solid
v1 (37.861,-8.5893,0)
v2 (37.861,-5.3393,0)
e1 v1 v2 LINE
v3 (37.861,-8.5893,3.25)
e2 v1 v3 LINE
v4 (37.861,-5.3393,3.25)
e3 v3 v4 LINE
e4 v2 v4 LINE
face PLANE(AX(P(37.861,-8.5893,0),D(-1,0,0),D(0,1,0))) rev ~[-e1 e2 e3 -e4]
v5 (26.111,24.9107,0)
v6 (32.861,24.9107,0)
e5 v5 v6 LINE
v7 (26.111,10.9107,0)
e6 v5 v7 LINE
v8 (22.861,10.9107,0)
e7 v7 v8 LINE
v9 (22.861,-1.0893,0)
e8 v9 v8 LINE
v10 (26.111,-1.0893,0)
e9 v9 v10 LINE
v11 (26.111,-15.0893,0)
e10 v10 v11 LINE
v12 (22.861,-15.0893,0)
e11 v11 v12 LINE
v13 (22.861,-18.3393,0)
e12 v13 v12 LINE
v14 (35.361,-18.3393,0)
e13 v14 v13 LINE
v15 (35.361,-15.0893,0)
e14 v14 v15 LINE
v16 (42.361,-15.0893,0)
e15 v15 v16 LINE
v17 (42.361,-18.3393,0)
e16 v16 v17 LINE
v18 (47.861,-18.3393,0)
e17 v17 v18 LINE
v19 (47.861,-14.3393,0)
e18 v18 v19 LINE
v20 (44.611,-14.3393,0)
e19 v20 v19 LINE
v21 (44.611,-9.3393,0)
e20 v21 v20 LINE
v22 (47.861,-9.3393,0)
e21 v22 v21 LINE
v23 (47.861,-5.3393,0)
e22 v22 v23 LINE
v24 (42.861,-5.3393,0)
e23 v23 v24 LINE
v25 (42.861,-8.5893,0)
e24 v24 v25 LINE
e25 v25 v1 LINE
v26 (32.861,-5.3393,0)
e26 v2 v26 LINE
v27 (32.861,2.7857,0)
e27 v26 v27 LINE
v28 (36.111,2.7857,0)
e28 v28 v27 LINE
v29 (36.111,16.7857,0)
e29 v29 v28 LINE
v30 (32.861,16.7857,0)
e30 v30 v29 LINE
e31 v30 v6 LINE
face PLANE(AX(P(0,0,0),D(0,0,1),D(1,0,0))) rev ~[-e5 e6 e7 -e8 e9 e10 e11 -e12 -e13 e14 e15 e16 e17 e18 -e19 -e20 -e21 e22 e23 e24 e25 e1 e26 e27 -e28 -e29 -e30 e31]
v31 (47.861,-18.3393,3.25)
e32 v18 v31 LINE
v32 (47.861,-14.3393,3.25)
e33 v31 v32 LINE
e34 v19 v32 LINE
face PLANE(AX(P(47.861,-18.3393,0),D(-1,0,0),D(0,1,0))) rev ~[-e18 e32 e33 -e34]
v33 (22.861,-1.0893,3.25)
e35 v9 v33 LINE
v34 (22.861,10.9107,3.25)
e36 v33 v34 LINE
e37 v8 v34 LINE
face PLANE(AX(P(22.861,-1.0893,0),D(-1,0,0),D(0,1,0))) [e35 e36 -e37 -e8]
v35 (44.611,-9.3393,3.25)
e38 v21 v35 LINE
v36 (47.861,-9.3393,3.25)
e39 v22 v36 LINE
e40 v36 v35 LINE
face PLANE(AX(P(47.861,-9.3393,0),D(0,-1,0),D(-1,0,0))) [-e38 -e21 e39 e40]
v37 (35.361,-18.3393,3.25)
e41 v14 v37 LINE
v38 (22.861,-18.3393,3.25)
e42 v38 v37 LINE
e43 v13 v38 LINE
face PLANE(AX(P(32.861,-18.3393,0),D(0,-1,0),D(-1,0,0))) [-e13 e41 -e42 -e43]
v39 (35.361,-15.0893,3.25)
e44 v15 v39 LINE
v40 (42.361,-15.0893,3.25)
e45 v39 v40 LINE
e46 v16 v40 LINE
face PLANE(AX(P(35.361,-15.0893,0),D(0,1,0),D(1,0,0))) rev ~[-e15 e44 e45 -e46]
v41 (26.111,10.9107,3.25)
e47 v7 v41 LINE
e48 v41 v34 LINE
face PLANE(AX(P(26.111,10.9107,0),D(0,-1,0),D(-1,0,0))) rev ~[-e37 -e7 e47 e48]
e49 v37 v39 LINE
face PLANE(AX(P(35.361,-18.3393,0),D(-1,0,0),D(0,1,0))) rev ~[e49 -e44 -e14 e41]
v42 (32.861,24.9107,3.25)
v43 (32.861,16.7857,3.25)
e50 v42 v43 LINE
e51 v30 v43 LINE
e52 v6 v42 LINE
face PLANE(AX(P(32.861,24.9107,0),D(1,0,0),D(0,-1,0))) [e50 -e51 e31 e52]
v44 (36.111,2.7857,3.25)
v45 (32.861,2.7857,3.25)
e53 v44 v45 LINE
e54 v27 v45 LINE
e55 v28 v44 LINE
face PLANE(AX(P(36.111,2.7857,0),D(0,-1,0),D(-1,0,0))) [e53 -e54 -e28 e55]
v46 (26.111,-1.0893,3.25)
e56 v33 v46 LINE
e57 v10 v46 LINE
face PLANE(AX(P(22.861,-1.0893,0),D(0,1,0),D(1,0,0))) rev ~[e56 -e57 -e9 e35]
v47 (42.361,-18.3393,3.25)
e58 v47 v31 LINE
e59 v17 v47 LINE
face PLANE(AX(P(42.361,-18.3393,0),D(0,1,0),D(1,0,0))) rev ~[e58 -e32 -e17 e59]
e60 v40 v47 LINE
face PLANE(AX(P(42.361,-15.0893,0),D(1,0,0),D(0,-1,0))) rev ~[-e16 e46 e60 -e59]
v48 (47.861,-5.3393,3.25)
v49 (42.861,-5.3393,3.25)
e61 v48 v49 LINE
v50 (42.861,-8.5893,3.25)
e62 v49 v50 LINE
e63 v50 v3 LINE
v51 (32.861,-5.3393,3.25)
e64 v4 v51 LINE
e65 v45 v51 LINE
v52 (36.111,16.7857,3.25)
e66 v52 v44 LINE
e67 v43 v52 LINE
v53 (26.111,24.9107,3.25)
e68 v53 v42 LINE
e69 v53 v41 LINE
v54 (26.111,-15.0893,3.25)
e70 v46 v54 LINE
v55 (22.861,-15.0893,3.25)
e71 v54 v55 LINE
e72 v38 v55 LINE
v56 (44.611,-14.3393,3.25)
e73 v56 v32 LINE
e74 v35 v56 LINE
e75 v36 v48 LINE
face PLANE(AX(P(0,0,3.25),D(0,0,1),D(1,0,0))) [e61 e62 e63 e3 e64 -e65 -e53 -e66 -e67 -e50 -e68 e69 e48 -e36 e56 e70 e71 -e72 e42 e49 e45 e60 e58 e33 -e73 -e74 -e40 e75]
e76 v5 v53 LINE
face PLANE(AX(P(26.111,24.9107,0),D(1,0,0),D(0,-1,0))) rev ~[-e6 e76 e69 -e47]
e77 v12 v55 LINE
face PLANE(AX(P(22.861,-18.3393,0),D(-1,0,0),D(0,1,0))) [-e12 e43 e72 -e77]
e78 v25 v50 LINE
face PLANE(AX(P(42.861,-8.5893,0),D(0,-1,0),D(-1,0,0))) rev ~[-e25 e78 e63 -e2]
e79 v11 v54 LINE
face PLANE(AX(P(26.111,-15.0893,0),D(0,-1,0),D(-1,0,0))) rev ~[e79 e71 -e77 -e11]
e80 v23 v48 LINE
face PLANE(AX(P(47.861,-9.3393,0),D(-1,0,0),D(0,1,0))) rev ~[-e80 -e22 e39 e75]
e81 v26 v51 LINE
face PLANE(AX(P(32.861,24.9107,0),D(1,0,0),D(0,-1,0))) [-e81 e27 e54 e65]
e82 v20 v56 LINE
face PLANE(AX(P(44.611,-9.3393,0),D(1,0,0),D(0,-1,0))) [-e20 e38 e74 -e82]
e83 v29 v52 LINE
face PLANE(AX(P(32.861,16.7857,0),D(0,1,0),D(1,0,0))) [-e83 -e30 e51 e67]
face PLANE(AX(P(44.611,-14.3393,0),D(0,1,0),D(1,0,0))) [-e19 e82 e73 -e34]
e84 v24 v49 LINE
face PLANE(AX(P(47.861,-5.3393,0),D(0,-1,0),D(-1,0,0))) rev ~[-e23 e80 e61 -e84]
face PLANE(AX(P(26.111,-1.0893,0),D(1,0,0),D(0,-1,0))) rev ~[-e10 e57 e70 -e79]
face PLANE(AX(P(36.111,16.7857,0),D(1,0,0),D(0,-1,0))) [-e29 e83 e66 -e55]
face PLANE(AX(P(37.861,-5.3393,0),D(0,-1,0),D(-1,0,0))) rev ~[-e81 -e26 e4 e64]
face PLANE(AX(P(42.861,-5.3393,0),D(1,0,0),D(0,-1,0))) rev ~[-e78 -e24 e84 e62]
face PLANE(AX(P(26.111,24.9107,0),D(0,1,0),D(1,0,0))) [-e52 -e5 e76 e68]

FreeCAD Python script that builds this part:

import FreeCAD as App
import Part
import Sketcher

V = App.Vector


def add_polygon(sketch, points):
    """Adds a closed chain of lines whose ends are joined by coincident constraints."""
    first, n = sketch.GeometryCount, len(points)
    for a, b in zip(points, points[1:] + points[:1]):
        sketch.addGeometry(Part.LineSegment(App.Vector(*a, 0), App.Vector(*b, 0)), False)
    for i in range(n):
        sketch.addConstraint(Sketcher.Constraint("Coincident", first + i, 2, first + (i + 1) % n, 1))

doc = App.newDocument("Part")
params = doc.addObject("Spreadsheet::Sheet", "Params")
for row, (alias, value) in enumerate([
    ("sketch1_width", "7 mm"),
    ("sketch1_width2", "5 mm"),
    ("sketch1_height", "14 mm"),
    ("sketch1_width3", "12.5 mm"),
    ("sketch1_width4", "5.5 mm"),
    ("pad1_length", "3.25 mm"),
    ("sketch2_height", "14 mm"),
    ("sketch2_width", "3.25 mm"),
    ("pad2_length", "3.25 mm"),
], start=1):
    params.set(f"A{row}", alias)
    params.set(f"B{row}", "=" + value)
    params.setAlias(f"B{row}", alias)

body = doc.addObject("PartDesign::Body", "Body")

sketch1 = body.newObject("Sketcher::SketchObject", "Sketch")
sketch1.AttachmentSupport = (doc.getObject("XY_Plane"), [""])
sketch1.MapMode = "FlatFace"
add_polygon(sketch1, [(32.861, 24.9107), (26.111, 24.9107), (26.111, 10.9107), (22.861, 10.9107), (22.861, -1.0893), (26.111, -1.0893), (26.111, -15.0893), (22.861, -15.0893), (22.861, -18.3393), (35.361, -18.3393), (35.361, -15.0893), (42.361, -15.0893), (42.361, -18.3393), (47.861, -18.3393), (47.861, -14.3393), (44.611, -14.3393), (44.611, -9.3393), (47.861, -9.3393), (47.861, -5.3393), (42.861, -5.3393), (42.861, -8.5893), (37.861, -8.5893), (37.861, -5.3393), (32.861, -5.3393)])
sketch1.addConstraint([
    Sketcher.Constraint("Horizontal", 0),
    Sketcher.Constraint("Vertical", 1),
    Sketcher.Constraint("Horizontal", 2),
    Sketcher.Constraint("Vertical", 3),
    Sketcher.Constraint("Horizontal", 4),
    Sketcher.Constraint("Vertical", 5),
    Sketcher.Constraint("Horizontal", 6),
    Sketcher.Constraint("Vertical", 7),
    Sketcher.Constraint("Horizontal", 8),
    Sketcher.Constraint("Vertical", 9),
    Sketcher.Constraint("Horizontal", 10),
    Sketcher.Constraint("Vertical", 11),
    Sketcher.Constraint("Horizontal", 12),
    Sketcher.Constraint("Vertical", 13),
    Sketcher.Constraint("Horizontal", 14),
    Sketcher.Constraint("Vertical", 15),
    Sketcher.Constraint("Horizontal", 16),
    Sketcher.Constraint("Vertical", 17),
    Sketcher.Constraint("Horizontal", 18),
    Sketcher.Constraint("Vertical", 19),
    Sketcher.Constraint("Horizontal", 20),
    Sketcher.Constraint("Vertical", 21),
    Sketcher.Constraint("Horizontal", 22),
    Sketcher.Constraint("Vertical", 23),
    Sketcher.Constraint("Horizontal", 6, 2, 9, 2),
    Sketcher.Constraint("Horizontal", 8, 2, 11, 2),
    Sketcher.Constraint("Horizontal", 18, 2, 21, 2),
    Sketcher.Constraint("Vertical", 1, 2, 4, 2),
    Sketcher.Constraint("Vertical", 3, 2, 6, 2),
    Sketcher.Constraint("Vertical", 13, 2, 16, 2),
    Sketcher.Constraint("Equal", 6, 14),
    Sketcher.Constraint("Equal", 18, 20),
    Sketcher.Constraint("Equal", 20, 22),
    Sketcher.Constraint("Equal", 1, 5),
    Sketcher.Constraint("Equal", 16, 7),
    Sketcher.Constraint("Equal", 22, 15),
    Sketcher.Constraint("Equal", 13, 17),
    Sketcher.Constraint("Equal", 11, 19),
    Sketcher.Constraint("DistanceX", 10, 1, 10, 2, 7.0),
    Sketcher.Constraint("DistanceX", 18, 2, 18, 1, 5.0),
    Sketcher.Constraint("DistanceY", 1, 2, 1, 1, 14.0),
    Sketcher.Constraint("DistanceX", 8, 1, 8, 2, 12.5),
    Sketcher.Constraint("DistanceX", 12, 1, 12, 2, 5.5),
    Sketcher.Constraint("DistanceX", 2, 2, 2, 1, 3.25),
    Sketcher.Constraint("DistanceY", 23, 1, 23, 2, 30.25),
    Sketcher.Constraint("DistanceY", 3, 2, 3, 1, 12.0),
    Sketcher.Constraint("DistanceX", -1, 1, 0, 2, 26.111),
    Sketcher.Constraint("DistanceY", -1, 1, 0, 2, 24.9107),
])
sketch1.setExpression("Constraints[62]", "Params.sketch1_width")
sketch1.setExpression("Constraints[63]", "Params.sketch1_width2")
sketch1.setExpression("Constraints[64]", "Params.sketch1_height")
sketch1.setExpression("Constraints[65]", "Params.sketch1_width3")
sketch1.setExpression("Constraints[66]", "Params.sketch1_width4")
pad1 = body.newObject("PartDesign::Pad", "Pad")
pad1.Profile = sketch1
pad1.setExpression("Length", "Params.pad1_length")

sketch2 = body.newObject("Sketcher::SketchObject", "Sketch001")
sketch2.AttachmentSupport = (doc.getObject("XY_Plane"), [""])
sketch2.MapMode = "FlatFace"
add_polygon(sketch2, [(36.111, 16.7857), (32.861, 16.7857), (32.861, 2.7857), (36.111, 2.7857)])
sketch2.addConstraint([
    Sketcher.Constraint("Horizontal", 0),
    Sketcher.Constraint("Vertical", 1),
    Sketcher.Constraint("Horizontal", 2),
    Sketcher.Constraint("Vertical", 3),
    Sketcher.Constraint("DistanceY", 1, 2, 1, 1, 14.0),
    Sketcher.Constraint("DistanceX", 0, 2, 0, 1, 3.25),
    Sketcher.Constraint("DistanceX", -1, 1, 0, 2, 32.861),
    Sketcher.Constraint("DistanceY", -1, 1, 0, 2, 16.7857),
])
sketch2.setExpression("Constraints[8]", "Params.sketch2_height")
sketch2.setExpression("Constraints[9]", "Params.sketch2_width")
pad2 = body.newObject("PartDesign::Pad", "Pad001")
pad2.Profile = sketch2
pad2.setExpression("Length", "Params.pad2_length")

doc.recompute()
